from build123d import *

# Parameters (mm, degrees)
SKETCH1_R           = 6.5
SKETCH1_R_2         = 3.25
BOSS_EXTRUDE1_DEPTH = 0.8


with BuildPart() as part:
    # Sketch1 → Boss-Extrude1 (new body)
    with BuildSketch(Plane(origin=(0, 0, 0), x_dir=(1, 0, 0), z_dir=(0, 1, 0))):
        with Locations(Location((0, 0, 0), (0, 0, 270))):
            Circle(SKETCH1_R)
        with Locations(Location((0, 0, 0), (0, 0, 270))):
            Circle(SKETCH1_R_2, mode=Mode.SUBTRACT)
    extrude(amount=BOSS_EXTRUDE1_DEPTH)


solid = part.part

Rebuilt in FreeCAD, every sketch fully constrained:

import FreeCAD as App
import Part
import Sketcher
from FreeCAD import Vector

doc = App.newDocument("Part")
body = doc.addObject("PartDesign::Body", "Body")

# Sketch on XZ plane
sketch1 = doc.addObject("Sketcher::SketchObject", "Sketch")
body.addObject(sketch1)
sketch1.AttachmentSupport = (doc.XZ_Plane, [""])
sketch1.MapMode = "FlatFace"
sketch1.addGeometry([
    Part.Circle(Vector(0, 0, 0), Vector(0, 0, 1), 6.5),
    Part.Circle(Vector(0, 0, 0), Vector(0, 0, 1), 3.2),
], False)
sketch1.addConstraint([
    Sketcher.Constraint("Coincident", 0, 3, -1, 1),
    Sketcher.Constraint("Coincident", 1, 3, -1, 1),
    Sketcher.Constraint("Diameter", 0, 13.0),
    Sketcher.Constraint("Diameter", 1, 6.5),
])
pad1 = doc.addObject("PartDesign::Pad", "Pad")
body.addObject(pad1)
pad1.Profile = sketch1
pad1.Length = 0.8
pad1.Reversed = True

doc.recompute()
